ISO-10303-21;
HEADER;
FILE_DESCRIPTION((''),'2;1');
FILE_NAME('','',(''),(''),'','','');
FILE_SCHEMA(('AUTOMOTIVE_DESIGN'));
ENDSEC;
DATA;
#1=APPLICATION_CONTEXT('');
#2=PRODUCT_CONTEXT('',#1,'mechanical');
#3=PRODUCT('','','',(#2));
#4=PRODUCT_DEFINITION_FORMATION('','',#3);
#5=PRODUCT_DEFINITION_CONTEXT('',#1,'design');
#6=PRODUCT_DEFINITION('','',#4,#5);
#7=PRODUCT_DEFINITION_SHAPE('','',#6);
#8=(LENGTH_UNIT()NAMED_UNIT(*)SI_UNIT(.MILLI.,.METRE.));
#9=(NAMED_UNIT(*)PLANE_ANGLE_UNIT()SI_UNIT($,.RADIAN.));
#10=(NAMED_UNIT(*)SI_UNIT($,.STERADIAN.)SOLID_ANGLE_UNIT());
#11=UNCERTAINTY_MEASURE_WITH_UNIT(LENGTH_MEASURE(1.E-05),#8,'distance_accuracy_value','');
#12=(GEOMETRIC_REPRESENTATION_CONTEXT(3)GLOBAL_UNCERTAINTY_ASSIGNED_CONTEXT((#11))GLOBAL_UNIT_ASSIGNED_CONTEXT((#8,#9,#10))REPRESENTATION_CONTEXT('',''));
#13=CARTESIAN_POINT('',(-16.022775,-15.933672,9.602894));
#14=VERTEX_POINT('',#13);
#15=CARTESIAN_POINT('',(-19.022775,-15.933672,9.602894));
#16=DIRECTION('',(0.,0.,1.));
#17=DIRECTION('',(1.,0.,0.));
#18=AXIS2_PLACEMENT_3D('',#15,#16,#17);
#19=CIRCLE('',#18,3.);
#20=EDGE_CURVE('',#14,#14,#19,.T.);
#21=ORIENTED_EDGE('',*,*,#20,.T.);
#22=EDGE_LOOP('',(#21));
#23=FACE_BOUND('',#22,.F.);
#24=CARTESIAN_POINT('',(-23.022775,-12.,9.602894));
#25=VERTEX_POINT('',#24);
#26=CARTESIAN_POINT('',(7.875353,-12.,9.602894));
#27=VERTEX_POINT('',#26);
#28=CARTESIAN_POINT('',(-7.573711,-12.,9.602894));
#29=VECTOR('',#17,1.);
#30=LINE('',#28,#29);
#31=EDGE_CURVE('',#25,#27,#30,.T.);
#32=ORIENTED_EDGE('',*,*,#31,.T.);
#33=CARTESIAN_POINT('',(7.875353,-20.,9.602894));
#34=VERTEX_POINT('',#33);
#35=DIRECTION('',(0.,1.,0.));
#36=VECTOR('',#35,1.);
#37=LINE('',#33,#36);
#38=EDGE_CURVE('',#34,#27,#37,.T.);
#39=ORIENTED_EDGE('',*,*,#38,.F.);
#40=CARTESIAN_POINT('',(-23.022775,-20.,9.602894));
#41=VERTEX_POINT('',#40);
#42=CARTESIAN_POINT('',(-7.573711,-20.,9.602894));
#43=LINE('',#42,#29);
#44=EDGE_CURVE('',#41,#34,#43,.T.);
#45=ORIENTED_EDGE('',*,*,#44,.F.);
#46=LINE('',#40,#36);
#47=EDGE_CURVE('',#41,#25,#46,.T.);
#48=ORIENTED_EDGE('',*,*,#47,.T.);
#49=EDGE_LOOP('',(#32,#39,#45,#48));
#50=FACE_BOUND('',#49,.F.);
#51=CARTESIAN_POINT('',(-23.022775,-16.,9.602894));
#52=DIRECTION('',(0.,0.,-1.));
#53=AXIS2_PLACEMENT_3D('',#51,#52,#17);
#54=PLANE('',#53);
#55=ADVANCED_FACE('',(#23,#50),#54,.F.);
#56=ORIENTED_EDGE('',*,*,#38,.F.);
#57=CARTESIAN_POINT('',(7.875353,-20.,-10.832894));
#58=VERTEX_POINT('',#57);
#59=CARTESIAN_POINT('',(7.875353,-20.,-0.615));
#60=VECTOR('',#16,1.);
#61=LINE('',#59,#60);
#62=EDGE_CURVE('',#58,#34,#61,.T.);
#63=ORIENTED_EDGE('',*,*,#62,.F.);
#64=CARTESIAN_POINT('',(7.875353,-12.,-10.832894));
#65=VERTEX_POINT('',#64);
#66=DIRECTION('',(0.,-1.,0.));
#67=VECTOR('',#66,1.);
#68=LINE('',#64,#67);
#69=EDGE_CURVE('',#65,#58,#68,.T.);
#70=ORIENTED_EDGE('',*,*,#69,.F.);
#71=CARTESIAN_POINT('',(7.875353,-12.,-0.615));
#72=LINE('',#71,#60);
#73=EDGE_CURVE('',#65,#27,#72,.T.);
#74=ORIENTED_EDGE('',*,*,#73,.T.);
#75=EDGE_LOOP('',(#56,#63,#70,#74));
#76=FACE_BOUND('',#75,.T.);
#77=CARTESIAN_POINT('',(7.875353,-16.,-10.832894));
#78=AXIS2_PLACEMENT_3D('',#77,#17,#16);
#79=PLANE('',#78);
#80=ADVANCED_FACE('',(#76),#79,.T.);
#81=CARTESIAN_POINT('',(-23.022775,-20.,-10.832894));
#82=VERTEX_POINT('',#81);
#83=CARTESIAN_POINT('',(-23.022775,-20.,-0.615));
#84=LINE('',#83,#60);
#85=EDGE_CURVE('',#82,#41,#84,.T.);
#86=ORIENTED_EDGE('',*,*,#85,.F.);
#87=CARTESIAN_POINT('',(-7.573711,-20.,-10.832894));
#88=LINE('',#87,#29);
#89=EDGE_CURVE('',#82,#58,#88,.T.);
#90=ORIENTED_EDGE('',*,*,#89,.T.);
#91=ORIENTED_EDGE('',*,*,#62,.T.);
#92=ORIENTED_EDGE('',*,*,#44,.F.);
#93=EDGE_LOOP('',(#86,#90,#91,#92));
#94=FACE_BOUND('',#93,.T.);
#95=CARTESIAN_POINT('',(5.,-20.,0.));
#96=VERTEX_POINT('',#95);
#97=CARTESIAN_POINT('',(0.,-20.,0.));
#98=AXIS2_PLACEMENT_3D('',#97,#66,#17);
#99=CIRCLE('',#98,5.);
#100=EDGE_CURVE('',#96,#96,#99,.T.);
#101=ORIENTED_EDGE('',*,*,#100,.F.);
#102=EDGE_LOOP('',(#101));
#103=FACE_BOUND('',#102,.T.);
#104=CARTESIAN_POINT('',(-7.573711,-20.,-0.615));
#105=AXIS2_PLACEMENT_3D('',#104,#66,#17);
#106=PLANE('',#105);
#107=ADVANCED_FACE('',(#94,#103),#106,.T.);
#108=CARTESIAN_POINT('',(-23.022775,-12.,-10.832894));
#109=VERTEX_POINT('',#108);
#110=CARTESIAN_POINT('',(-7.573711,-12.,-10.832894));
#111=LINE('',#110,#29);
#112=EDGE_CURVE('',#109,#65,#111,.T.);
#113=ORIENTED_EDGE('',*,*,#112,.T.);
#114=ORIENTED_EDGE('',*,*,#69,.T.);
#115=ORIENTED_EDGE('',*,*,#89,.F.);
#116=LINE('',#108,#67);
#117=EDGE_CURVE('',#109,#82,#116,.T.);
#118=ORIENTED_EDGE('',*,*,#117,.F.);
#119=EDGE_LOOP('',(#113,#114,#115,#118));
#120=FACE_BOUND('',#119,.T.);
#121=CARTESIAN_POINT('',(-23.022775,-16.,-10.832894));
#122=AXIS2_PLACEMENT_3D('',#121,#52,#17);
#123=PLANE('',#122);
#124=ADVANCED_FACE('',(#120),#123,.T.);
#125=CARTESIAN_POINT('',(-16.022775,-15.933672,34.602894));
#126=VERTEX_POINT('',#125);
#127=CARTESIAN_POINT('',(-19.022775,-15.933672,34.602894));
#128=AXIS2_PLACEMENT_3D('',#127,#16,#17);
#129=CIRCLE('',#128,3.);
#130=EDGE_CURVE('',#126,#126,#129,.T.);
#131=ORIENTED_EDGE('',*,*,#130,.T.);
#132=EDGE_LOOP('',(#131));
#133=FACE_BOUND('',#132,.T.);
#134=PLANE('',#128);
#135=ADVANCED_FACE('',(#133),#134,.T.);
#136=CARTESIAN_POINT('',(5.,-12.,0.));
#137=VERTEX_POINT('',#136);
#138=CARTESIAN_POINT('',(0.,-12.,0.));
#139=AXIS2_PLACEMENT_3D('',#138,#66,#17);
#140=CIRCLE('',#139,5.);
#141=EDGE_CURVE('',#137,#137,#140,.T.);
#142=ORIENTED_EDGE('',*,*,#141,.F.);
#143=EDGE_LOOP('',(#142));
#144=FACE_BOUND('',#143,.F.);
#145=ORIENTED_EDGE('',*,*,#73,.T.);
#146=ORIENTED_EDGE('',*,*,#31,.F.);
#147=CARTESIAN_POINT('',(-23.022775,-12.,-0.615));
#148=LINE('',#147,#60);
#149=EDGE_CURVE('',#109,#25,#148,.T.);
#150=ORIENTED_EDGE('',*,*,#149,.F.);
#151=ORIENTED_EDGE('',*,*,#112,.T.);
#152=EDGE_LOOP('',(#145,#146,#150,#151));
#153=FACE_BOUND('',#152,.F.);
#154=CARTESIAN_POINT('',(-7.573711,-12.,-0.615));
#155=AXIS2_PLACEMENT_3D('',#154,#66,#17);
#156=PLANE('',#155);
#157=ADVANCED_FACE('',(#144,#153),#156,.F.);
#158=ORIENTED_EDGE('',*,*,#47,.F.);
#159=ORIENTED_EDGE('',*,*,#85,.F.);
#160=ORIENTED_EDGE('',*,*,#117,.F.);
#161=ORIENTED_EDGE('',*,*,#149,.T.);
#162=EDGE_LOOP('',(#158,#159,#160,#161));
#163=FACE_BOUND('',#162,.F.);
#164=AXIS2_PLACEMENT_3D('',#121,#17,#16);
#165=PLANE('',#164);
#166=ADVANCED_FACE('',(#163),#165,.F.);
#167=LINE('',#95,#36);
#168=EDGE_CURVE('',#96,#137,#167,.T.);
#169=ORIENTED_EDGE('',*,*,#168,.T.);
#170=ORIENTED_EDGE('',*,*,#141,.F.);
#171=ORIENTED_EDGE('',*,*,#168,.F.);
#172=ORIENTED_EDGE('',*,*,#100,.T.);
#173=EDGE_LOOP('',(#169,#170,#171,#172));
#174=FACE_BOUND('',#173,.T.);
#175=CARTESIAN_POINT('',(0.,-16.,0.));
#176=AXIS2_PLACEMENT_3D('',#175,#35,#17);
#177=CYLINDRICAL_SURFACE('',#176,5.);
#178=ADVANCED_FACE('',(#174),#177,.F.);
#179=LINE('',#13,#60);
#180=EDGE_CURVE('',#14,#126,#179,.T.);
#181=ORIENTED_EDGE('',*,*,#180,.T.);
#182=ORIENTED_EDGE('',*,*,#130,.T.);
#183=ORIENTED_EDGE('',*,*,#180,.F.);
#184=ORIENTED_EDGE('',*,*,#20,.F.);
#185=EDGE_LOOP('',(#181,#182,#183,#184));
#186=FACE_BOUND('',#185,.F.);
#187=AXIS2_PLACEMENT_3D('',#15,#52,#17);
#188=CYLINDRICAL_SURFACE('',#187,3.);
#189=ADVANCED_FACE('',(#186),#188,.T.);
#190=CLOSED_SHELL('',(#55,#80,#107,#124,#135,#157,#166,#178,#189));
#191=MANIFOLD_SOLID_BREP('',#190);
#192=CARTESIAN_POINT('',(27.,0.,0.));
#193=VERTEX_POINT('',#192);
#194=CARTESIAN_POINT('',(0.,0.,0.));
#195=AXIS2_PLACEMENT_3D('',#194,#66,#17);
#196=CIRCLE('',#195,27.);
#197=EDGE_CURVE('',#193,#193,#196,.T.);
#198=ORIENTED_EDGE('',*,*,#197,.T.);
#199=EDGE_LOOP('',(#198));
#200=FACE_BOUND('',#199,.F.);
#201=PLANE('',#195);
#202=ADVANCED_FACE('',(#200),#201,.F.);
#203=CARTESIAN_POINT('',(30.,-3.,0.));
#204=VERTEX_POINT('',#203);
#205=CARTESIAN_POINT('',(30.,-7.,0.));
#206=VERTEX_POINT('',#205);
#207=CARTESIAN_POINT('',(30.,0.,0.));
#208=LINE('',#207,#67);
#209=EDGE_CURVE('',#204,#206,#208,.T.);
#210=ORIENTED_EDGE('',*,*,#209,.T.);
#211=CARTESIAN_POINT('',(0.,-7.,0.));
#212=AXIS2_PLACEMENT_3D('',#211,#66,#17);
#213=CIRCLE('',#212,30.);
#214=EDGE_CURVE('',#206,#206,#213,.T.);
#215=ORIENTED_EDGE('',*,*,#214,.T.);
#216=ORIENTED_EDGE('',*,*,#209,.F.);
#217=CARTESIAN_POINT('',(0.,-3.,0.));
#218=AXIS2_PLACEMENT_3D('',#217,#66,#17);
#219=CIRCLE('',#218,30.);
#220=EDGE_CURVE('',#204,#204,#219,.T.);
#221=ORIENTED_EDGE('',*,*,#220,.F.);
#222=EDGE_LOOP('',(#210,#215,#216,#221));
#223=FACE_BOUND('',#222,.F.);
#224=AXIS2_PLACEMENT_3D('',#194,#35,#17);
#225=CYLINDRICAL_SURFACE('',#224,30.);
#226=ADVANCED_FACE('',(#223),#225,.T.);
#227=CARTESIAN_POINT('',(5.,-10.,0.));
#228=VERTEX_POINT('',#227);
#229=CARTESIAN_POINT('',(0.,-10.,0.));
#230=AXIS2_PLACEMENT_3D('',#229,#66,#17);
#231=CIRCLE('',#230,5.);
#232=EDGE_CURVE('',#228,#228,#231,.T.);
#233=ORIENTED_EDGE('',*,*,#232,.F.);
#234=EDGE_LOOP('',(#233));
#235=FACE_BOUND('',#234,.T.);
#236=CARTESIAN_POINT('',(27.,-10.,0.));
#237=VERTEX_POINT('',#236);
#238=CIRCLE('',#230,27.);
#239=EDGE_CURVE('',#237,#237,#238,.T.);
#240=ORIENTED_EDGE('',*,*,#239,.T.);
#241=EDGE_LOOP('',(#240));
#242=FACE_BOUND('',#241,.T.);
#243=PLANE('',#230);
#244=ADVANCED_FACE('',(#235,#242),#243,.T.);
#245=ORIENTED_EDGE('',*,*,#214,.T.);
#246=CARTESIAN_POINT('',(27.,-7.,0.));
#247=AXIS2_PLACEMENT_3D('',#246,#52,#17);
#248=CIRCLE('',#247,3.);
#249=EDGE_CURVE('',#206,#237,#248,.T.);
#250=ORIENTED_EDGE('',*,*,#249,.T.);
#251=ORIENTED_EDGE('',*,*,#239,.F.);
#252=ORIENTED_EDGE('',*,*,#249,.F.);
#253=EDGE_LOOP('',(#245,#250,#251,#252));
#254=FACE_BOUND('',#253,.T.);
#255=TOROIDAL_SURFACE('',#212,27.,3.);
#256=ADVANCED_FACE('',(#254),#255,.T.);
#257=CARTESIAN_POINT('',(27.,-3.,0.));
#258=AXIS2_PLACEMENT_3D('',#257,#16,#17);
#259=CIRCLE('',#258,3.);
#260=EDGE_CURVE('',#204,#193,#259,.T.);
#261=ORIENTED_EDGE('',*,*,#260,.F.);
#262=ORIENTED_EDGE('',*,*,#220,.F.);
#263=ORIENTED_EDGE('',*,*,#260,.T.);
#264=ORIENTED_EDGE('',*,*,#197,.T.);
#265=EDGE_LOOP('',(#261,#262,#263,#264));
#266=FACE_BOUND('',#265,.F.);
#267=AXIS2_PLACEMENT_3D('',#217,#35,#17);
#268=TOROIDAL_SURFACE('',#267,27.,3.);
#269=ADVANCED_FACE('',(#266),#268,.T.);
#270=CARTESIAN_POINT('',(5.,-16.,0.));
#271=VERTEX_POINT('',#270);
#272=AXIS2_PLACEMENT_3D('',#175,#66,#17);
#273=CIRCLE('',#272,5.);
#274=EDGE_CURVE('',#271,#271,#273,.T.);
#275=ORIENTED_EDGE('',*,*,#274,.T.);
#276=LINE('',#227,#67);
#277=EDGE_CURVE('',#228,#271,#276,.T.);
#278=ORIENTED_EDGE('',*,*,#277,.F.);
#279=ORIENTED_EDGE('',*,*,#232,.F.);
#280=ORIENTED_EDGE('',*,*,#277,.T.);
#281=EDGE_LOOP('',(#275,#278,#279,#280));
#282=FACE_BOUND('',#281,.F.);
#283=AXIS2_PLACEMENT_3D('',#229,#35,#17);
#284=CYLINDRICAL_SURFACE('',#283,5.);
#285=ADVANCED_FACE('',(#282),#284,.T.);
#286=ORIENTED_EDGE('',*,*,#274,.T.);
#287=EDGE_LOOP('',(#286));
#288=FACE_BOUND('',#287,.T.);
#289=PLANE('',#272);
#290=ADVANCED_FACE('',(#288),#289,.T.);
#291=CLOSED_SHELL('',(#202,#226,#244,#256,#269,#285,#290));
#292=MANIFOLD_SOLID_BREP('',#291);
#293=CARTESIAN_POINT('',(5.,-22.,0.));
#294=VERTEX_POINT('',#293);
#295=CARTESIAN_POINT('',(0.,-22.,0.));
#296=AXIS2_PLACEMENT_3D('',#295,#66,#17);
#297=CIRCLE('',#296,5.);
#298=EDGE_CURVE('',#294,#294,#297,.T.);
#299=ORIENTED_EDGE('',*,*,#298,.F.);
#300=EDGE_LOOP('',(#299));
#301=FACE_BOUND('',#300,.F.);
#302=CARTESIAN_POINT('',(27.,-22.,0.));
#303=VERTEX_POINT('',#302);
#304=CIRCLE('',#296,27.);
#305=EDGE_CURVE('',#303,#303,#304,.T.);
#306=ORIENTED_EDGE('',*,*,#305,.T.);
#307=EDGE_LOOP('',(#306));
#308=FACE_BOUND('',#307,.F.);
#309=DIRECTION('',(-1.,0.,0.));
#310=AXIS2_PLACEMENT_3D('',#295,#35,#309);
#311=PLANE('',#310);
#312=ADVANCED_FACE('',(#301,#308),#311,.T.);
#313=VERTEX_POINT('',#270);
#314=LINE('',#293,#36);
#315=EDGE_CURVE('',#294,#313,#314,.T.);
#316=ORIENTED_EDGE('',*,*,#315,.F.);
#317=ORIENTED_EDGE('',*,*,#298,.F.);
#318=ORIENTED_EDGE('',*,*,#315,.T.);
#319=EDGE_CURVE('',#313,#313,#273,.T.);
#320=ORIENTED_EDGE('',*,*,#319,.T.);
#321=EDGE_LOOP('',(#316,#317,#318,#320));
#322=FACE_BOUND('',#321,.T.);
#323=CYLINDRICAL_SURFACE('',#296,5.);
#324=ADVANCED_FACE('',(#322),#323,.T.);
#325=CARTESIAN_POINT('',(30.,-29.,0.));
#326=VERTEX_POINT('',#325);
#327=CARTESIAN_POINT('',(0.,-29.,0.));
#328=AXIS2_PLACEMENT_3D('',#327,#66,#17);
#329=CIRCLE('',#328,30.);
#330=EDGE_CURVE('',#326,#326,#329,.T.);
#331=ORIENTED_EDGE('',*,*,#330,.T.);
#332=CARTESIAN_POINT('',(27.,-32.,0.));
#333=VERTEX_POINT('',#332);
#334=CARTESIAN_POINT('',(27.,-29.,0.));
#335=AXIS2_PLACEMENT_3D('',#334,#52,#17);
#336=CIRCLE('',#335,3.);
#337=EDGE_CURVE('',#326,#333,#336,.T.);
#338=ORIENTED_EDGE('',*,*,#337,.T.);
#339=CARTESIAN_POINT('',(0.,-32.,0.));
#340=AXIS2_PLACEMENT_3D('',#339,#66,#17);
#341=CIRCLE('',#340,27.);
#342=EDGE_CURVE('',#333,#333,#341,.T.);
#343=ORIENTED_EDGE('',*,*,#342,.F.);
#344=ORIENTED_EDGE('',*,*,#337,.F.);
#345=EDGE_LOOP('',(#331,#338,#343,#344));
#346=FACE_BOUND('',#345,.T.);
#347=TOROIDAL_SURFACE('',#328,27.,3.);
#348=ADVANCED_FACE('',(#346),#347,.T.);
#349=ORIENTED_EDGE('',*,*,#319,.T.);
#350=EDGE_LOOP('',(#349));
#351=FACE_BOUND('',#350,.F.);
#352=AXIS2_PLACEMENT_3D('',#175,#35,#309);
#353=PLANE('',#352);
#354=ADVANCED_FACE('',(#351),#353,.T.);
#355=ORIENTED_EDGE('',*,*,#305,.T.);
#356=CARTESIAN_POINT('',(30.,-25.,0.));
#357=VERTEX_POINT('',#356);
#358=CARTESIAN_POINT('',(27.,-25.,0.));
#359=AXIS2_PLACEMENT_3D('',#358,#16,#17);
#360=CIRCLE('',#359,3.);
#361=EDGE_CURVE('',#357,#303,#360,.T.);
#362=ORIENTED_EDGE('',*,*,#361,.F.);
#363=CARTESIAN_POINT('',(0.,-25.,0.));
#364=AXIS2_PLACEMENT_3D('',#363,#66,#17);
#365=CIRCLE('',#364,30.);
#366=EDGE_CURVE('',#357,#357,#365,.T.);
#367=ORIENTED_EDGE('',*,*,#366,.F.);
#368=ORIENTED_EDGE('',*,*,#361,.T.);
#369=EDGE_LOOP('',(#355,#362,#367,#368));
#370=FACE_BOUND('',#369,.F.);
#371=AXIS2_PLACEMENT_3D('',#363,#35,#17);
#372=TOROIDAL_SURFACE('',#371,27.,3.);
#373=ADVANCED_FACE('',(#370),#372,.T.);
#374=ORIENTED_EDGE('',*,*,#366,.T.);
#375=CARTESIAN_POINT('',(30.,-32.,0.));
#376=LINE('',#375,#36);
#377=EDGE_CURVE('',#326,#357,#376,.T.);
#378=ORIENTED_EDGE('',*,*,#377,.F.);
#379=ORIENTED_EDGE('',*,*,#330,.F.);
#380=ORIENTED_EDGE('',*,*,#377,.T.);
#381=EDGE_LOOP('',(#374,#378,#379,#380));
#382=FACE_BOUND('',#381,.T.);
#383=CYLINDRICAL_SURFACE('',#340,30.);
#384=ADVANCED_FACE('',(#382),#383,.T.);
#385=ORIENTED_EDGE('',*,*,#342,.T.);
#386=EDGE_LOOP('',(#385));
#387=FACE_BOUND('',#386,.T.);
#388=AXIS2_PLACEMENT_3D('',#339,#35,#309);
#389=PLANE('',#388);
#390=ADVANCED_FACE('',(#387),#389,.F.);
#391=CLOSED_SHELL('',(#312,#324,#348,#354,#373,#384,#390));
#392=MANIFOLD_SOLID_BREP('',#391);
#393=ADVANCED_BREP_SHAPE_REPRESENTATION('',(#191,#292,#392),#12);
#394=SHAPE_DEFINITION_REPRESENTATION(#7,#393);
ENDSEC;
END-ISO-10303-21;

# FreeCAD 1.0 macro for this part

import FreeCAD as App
import Part
import Sketcher
from FreeCAD import Vector
Q = App.Units.Quantity


def edges_at(feature, points):
    """Names of the edges that pass closest to the given points."""
    edges = feature.Shape.Edges
    near = lambda p: min(range(len(edges)), key=lambda i: edges[i].distToShape(Part.Vertex(*p))[0])
    return sorted({f"Edge{near(p) + 1}" for p in points})


def add_polygon(sketch, points):
    """Adds a closed chain of lines whose ends are joined by coincident constraints."""
    first, n = sketch.GeometryCount, len(points)
    for a, b in zip(points, points[1:] + points[:1]):
        sketch.addGeometry(Part.LineSegment(App.Vector(*a, 0), App.Vector(*b, 0)), False)
    for i in range(n):
        sketch.addConstraint(Sketcher.Constraint("Coincident", first + i, 2, first + (i + 1) % n, 1))

doc = App.newDocument("Part")
body = doc.addObject("PartDesign::Body", "Body")

sketch1 = body.newObject("Sketcher::SketchObject", "Sketch")
sketch1.AttachmentSupport = (doc.getObject("XZ_Plane"), [""])
sketch1.MapMode = "FlatFace"
sketch1.addGeometry(Part.Circle(Vector(0, 0, 0), Vector(0, 0, 1), 30), False)
sketch1.addConstraint(Sketcher.Constraint("Coincident", 0, 3, -1, 1))
sketch1.addConstraint(Sketcher.Constraint("Diameter", 0, Q("60 mm")))
pad1 = body.newObject("PartDesign::Pad", "Pad")
pad1.Profile = sketch1
pad1.Length = 10
doc.recompute()

fillet = body.newObject("PartDesign::Fillet", "Fillet")
fillet.Base = (pad1, edges_at(pad1, [(-30, -10, 0), (-30, 0, 0)]))
fillet.Radius = 3

sketch2 = body.newObject("Sketcher::SketchObject", "Sketch001")
sketch2.AttachmentSupport = (doc.getObject("XZ_Plane"), [""])
sketch2.MapMode = "FlatFace"
sketch2.AttachmentOffset = App.Placement(Vector(0, 0, 10), App.Rotation())
sketch2.addGeometry(Part.Circle(Vector(0, 0, 0), Vector(0, 0, 1), 5), False)
sketch2.addConstraint(Sketcher.Constraint("Coincident", 0, 3, -1, 1))
sketch2.addConstraint(Sketcher.Constraint("Diameter", 0, Q("10 mm")))
pad2 = body.newObject("PartDesign::Pad", "Pad001")
pad2.Profile = sketch2
pad2.Length = 6
body2 = doc.addObject("PartDesign::Body", "Body001")
doc.recompute()

mirroring = doc.addObject("Part::Mirroring", "Mirroring")
mirroring.Source = body
mirroring.Base = Vector(0, -16, 0)
mirroring.Normal = Vector(0, -1, 0)
body2.BaseFeature = mirroring
doc.recompute()
body3 = doc.addObject("PartDesign::Body", "Body002")

sketch3 = body3.newObject("Sketcher::SketchObject", "Sketch002")
sketch3.AttachmentSupport = (doc.getObject("XZ_Plane002"), [""])
sketch3.MapMode = "FlatFace"
sketch3.AttachmentOffset = App.Placement(Vector(0, 0, 16), App.Rotation())
add_polygon(sketch3, [(-23, 10), (-23, -11), (8, -11), (8, 10)])
sketch3.addGeometry(Part.Circle(Vector(0, 0, 0), Vector(0, 0, 1), 5), False)
sketch3.addConstraint(Sketcher.Constraint("Vertical", 0))
sketch3.addConstraint(Sketcher.Constraint("Horizontal", 1))
sketch3.addConstraint(Sketcher.Constraint("Vertical", 2))
sketch3.addConstraint(Sketcher.Constraint("Horizontal", 3))
sketch3.addConstraint(Sketcher.Constraint("Coincident", 4, 3, -1, 1))
sketch3.addConstraint(Sketcher.Constraint("Diameter", 4, Q("10 mm")))
sketch3.addConstraint(Sketcher.Constraint("DistanceX", 1, 1, 1, 2, Q("30.898128 mm")))
sketch3.addConstraint(Sketcher.Constraint("DistanceY", 0, 2, 0, 1, Q("20.435788 mm")))
sketch3.addConstraint(Sketcher.Constraint("DistanceX", 0, 2, -1, 1, Q("23.022775 mm")))
sketch3.addConstraint(Sketcher.Constraint("DistanceY", 0, 2, -1, 1, Q("10.832894 mm")))
pad3 = body3.newObject("PartDesign::Pad", "Pad002")
pad3.Profile = sketch3
pad3.Length = 8
pad3.Midplane = True

sketch4 = body3.newObject("Sketcher::SketchObject", "Sketch003")
sketch4.AttachmentSupport = (doc.getObject("XY_Plane002"), [""])
sketch4.MapMode = "FlatFace"
sketch4.AttachmentOffset = App.Placement(Vector(0, 0, 9.602894), App.Rotation())
sketch4.addGeometry(Part.Circle(Vector(-19, -15.9, 0), Vector(0, 0, 1), 3), False)
sketch4.addConstraint(Sketcher.Constraint("Diameter", 0, Q("6 mm")))
sketch4.addConstraint(Sketcher.Constraint("DistanceX", 0, 3, -1, 1, Q("19.022775 mm")))
sketch4.addConstraint(Sketcher.Constraint("DistanceY", 0, 3, -1, 1, Q("15.933672 mm")))
pad4 = body3.newObject("PartDesign::Pad", "Pad003")
pad4.Profile = sketch4
pad4.Length = 25
mirroring.Visibility = False

doc.recompute()
